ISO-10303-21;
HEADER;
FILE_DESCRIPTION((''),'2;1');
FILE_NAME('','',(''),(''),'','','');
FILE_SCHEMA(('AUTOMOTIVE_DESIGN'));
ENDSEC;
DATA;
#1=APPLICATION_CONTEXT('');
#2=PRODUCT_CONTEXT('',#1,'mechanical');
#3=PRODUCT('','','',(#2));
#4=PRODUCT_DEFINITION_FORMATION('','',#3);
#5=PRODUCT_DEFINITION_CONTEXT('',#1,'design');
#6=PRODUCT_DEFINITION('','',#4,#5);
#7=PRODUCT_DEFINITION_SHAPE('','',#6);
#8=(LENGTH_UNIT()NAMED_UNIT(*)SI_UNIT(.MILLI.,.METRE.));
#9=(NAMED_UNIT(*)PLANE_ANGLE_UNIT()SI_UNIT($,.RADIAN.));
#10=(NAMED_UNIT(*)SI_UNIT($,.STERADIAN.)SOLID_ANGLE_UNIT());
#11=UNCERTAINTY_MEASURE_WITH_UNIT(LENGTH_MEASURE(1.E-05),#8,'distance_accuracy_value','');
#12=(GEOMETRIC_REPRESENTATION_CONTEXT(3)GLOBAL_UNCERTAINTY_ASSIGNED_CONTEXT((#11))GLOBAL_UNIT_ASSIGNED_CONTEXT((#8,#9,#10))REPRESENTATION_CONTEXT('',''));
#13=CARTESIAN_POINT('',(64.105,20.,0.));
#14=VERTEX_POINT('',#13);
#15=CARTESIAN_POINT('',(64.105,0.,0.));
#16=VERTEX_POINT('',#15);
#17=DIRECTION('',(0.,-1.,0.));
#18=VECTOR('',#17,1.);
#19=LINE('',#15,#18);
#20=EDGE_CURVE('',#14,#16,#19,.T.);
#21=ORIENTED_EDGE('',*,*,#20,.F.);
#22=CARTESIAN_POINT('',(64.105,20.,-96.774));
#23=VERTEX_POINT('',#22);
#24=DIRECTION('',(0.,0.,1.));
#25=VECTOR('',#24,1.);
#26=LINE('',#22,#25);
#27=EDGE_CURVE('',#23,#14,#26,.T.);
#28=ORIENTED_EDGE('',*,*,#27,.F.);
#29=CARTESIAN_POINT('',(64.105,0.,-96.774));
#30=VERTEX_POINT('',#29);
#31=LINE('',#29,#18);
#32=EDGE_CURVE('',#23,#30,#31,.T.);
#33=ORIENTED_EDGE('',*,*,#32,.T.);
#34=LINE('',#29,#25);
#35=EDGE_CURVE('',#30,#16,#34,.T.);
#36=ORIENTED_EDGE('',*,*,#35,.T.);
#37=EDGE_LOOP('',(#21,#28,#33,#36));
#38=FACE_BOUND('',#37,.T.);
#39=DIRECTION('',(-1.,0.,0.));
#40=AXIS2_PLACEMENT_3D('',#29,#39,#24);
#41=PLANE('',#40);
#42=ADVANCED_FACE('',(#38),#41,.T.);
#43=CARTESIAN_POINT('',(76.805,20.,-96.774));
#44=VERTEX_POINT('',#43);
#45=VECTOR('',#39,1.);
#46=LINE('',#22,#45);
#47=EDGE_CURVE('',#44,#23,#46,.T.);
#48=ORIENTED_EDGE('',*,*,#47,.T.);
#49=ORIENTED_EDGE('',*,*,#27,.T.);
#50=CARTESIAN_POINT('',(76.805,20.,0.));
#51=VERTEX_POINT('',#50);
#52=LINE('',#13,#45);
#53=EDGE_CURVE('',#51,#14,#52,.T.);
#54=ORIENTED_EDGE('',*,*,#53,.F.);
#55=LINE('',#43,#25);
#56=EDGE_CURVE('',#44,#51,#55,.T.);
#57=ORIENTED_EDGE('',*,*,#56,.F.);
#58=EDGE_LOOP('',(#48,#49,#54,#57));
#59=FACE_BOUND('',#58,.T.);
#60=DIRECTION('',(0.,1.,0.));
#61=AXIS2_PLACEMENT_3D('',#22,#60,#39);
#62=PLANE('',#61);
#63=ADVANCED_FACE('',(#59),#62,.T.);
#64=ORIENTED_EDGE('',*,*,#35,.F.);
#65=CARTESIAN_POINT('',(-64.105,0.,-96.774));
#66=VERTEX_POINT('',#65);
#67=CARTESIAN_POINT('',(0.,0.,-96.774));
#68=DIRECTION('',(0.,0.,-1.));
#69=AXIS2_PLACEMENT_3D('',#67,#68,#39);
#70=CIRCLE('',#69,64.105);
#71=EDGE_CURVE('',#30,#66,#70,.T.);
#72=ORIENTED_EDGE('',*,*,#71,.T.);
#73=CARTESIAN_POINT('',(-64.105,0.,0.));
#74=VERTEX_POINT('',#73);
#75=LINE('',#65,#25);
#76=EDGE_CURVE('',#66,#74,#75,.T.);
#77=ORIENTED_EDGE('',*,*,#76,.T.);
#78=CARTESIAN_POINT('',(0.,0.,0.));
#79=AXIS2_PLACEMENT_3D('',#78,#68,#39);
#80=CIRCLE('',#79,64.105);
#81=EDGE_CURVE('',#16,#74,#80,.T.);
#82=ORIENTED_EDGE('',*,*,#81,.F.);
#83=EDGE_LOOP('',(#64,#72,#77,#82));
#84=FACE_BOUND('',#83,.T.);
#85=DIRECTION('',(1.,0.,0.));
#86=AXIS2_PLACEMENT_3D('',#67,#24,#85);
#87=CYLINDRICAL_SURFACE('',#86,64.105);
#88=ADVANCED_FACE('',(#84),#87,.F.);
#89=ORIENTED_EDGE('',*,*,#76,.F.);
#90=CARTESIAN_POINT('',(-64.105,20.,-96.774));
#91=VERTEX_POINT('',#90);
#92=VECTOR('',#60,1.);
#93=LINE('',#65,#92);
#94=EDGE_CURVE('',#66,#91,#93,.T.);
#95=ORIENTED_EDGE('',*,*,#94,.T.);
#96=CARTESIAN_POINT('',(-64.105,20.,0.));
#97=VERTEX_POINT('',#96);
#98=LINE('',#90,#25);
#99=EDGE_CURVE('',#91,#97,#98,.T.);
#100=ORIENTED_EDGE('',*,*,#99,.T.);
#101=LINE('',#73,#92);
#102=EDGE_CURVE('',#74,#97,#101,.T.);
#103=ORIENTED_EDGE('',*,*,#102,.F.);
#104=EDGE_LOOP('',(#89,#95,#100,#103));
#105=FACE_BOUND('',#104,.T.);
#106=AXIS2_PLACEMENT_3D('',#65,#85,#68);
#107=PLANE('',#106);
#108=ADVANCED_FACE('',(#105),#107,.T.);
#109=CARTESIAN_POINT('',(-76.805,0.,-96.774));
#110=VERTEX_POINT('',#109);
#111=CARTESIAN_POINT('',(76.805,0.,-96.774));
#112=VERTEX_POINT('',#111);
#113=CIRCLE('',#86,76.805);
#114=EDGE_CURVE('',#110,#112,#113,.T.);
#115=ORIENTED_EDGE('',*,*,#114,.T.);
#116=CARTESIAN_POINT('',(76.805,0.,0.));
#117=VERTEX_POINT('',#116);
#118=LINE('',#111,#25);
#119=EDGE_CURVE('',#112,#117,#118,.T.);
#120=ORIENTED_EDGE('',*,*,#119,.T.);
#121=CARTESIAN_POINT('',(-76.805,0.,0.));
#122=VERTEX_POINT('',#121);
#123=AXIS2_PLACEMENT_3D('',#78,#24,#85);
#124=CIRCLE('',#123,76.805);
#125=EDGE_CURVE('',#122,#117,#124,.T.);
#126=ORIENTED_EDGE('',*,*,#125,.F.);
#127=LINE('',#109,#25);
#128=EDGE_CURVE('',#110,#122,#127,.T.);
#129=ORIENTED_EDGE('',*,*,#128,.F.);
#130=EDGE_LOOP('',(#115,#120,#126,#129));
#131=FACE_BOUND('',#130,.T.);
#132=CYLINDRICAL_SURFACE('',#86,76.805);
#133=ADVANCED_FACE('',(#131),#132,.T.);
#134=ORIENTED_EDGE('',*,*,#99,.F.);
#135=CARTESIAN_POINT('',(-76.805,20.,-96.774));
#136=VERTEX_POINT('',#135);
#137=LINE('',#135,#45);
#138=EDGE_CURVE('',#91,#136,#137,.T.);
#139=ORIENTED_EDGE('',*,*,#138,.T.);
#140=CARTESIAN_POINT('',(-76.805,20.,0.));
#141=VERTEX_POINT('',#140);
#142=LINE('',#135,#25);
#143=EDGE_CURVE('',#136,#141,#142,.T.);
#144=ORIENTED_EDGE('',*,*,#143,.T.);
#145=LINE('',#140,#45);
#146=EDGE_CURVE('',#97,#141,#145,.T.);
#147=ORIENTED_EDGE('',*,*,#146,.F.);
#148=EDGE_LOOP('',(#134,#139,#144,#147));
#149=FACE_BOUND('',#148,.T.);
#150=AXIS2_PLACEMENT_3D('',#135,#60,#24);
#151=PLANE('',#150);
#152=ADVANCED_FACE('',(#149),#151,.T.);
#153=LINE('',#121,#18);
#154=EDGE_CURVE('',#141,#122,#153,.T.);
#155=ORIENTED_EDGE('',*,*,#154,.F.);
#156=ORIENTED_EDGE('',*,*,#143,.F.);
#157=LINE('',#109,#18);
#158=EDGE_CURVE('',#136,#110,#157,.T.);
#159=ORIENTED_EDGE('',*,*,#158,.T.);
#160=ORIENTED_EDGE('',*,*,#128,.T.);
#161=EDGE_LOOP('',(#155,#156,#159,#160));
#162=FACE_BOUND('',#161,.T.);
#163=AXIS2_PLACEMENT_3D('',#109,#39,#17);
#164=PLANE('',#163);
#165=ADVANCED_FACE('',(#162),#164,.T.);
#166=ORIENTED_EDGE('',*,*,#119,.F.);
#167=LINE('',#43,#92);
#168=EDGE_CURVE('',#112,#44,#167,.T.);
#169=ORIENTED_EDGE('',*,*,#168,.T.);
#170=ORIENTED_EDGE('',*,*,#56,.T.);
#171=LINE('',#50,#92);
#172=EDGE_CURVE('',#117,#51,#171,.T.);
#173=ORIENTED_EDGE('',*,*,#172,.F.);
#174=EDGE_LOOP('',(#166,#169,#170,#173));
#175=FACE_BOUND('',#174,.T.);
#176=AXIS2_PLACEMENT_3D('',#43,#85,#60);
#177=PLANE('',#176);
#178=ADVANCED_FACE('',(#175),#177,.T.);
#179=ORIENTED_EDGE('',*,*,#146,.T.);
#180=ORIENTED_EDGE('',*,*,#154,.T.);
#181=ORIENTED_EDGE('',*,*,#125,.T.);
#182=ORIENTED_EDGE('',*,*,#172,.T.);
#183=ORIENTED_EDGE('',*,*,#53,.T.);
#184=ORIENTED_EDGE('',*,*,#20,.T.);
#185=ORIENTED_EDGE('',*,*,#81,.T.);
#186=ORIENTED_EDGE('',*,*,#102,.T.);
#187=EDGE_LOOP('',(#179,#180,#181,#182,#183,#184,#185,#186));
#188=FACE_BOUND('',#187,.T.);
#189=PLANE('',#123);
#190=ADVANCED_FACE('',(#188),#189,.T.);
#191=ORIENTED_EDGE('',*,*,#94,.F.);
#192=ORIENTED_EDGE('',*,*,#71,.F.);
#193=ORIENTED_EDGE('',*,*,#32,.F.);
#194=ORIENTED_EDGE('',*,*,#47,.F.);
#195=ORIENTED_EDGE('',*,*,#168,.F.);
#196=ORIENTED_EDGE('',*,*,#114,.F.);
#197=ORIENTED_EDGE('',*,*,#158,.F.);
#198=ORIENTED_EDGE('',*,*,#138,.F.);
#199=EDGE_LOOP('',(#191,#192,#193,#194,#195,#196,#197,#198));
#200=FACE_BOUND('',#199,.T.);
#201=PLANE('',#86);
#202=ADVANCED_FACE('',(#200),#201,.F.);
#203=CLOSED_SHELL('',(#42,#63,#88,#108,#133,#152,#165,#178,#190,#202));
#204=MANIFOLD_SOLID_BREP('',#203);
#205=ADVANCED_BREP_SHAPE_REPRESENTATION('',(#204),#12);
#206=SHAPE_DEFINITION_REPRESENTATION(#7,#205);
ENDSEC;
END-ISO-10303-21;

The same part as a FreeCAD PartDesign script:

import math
import FreeCAD as App
import Part
import Sketcher

V = App.Vector
Q = App.Units.Quantity

doc = App.newDocument("Part")
body = doc.addObject("PartDesign::Body", "Body")

# Sketch on XY plane
sketch1 = body.newObject("Sketcher::SketchObject", "Sketch")
sketch1.AttachmentSupport = (doc.getObject("XY_Plane"), [""])
sketch1.MapMode = "FlatFace"
sketch1.addGeometry(Part.LineSegment(V(77, 0, 0), V(77, 20, 0)), False)
sketch1.addGeometry(Part.LineSegment(V(77, 20, 0), V(64, 20, 0)), False)
sketch1.addGeometry(Part.LineSegment(V(64, 20, 0), V(64, 0, 0)), False)
sketch1.addGeometry(Part.ArcOfCircle(Part.Circle(V(0, 0, 0), V(0, 0, 1), 64), math.radians(180), math.radians(360)), False)
sketch1.addGeometry(Part.LineSegment(V(-64, 0, 0), V(-64, 20, 0)), False)
sketch1.addGeometry(Part.LineSegment(V(-64, 20, 0), V(-77, 20, 0)), False)
sketch1.addGeometry(Part.LineSegment(V(-77, 20, 0), V(-77, 0, 0)), False)
sketch1.addGeometry(Part.ArcOfCircle(Part.Circle(V(0, 0, 0), V(0, 0, 1), 77), math.radians(180), math.radians(360)), False)
sketch1.addConstraint(Sketcher.Constraint("Coincident", 0, 2, 1, 1))
sketch1.addConstraint(Sketcher.Constraint("Coincident", 1, 2, 2, 1))
sketch1.addConstraint(Sketcher.Constraint("Tangent", 2, 2, 3, 2))
sketch1.addConstraint(Sketcher.Constraint("Tangent", 3, 1, 4, 1))
sketch1.addConstraint(Sketcher.Constraint("Coincident", 4, 2, 5, 1))
sketch1.addConstraint(Sketcher.Constraint("Coincident", 5, 2, 6, 1))
sketch1.addConstraint(Sketcher.Constraint("Tangent", 6, 2, 7, 1))
sketch1.addConstraint(Sketcher.Constraint("Tangent", 7, 2, 0, 1))
sketch1.addConstraint(Sketcher.Constraint("Vertical", 0))
sketch1.addConstraint(Sketcher.Constraint("Horizontal", 1))
sketch1.addConstraint(Sketcher.Constraint("Vertical", 2))
sketch1.addConstraint(Sketcher.Constraint("Vertical", 4))
sketch1.addConstraint(Sketcher.Constraint("Horizontal", 5))
sketch1.addConstraint(Sketcher.Constraint("Vertical", 6))
sketch1.addConstraint(Sketcher.Constraint("Coincident", 3, 3, -1, 1))
sketch1.addConstraint(Sketcher.Constraint("Coincident", 7, 3, -1, 1))
sketch1.addConstraint(Sketcher.Constraint("Horizontal", 1, 2, 4, 2))
sketch1.addConstraint(Sketcher.Constraint("DistanceX", 1, 2, 1, 1, Q("0.5 in")))
sketch1.addConstraint(Sketcher.Constraint("Radius", 3, Q("64.105 mm")))
sketch1.addConstraint(Sketcher.Constraint("DistanceY", 0, 1, 0, 2, Q("20 mm")))
pad1 = body.newObject("PartDesign::Pad", "Pad")
pad1.Profile = sketch1
pad1.Length = Q("3.81 in")
pad1.Reversed = True

doc.recompute()
